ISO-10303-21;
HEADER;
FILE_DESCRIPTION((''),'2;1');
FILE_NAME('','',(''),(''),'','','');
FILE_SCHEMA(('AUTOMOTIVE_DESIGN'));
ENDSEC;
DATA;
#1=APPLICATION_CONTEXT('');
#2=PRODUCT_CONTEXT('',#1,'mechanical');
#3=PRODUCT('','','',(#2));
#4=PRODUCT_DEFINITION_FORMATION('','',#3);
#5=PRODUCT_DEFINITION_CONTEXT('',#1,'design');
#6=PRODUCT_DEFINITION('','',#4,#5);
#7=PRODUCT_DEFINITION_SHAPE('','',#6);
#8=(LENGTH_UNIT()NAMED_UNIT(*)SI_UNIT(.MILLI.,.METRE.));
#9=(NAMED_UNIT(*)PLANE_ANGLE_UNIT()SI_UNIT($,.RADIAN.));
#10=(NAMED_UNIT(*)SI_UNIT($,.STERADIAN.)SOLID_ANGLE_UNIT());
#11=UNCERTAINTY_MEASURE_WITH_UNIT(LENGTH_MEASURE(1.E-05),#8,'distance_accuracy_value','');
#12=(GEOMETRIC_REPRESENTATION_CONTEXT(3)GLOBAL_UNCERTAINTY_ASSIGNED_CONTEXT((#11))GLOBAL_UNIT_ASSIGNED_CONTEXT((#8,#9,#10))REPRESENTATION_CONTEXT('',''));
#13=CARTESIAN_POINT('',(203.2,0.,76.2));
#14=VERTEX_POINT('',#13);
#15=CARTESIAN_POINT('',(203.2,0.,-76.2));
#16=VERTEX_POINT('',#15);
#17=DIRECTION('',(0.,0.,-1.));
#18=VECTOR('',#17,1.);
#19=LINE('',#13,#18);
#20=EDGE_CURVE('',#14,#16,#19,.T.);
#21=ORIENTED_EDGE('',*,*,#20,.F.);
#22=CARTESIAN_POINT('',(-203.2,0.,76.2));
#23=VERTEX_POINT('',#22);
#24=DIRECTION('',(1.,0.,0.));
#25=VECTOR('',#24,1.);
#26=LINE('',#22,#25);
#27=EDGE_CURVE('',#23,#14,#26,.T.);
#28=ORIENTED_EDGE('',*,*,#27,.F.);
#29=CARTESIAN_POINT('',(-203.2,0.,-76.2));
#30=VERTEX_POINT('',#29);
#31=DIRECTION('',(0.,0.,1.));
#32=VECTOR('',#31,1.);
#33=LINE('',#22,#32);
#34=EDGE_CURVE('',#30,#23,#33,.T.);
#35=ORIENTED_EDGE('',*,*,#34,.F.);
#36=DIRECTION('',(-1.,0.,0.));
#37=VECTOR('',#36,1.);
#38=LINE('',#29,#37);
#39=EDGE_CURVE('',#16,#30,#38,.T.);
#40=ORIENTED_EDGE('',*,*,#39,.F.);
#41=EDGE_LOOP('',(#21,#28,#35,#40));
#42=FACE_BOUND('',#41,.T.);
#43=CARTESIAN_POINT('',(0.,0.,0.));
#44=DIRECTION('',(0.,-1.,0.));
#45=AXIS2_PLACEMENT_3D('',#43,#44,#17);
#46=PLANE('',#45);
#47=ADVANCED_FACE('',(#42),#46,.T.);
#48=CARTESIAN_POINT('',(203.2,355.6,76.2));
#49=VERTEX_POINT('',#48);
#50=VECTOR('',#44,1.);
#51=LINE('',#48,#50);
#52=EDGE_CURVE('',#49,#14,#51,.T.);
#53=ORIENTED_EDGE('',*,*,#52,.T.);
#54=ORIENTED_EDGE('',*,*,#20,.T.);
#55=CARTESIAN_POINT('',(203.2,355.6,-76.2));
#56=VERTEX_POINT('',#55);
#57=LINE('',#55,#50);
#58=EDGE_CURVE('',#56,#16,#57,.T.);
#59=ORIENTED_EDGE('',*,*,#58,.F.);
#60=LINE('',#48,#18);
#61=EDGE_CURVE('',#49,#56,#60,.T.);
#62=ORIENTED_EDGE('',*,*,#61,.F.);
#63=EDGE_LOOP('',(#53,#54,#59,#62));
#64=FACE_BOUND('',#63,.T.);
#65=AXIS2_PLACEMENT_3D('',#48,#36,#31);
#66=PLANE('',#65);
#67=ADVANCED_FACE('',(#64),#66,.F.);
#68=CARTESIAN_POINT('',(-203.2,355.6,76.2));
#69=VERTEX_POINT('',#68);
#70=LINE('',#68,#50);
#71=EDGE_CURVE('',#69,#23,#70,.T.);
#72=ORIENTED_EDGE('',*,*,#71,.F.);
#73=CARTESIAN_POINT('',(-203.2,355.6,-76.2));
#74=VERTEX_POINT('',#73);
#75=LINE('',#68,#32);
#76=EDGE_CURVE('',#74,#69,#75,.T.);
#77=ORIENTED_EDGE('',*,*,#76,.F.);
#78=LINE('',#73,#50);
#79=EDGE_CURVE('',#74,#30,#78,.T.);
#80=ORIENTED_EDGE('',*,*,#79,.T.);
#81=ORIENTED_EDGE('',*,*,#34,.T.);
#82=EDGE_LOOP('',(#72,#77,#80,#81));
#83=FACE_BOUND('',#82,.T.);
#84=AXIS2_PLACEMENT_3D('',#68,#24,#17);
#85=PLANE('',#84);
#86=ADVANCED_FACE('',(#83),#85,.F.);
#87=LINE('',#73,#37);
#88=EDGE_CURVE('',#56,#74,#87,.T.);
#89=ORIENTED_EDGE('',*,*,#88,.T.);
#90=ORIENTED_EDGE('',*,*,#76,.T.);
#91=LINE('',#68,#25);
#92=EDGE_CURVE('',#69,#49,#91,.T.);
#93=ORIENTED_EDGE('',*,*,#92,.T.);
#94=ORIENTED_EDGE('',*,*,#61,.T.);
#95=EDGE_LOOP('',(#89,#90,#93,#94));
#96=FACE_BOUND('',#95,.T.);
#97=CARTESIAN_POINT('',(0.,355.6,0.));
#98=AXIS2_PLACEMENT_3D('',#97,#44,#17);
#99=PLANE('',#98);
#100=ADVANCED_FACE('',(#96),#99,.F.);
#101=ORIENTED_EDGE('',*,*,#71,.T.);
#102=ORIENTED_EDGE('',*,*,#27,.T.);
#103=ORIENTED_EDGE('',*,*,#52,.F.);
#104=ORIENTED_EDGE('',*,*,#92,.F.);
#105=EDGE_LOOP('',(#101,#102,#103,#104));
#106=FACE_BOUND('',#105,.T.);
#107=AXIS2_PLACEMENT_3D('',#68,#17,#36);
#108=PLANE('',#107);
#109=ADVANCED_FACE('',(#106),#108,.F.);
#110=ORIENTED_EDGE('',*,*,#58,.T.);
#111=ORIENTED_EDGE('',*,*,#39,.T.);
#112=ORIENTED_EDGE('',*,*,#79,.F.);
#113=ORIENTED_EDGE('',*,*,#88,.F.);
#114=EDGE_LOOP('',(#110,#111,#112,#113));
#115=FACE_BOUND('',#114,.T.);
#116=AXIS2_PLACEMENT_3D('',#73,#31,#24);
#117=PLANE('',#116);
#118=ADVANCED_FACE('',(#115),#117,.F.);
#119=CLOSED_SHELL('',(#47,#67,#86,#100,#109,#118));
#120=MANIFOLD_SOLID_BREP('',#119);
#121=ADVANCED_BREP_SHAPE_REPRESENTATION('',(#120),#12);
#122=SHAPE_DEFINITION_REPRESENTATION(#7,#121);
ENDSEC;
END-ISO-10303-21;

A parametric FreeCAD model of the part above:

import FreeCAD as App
import Part
import Sketcher

V = App.Vector
Q = App.Units.Quantity


def add_polygon(sketch, points):
    """Adds a closed chain of lines whose ends are joined by coincident constraints."""
    first, n = sketch.GeometryCount, len(points)
    for a, b in zip(points, points[1:] + points[:1]):
        sketch.addGeometry(Part.LineSegment(App.Vector(*a, 0), App.Vector(*b, 0)), False)
    for i in range(n):
        sketch.addConstraint(Sketcher.Constraint("Coincident", first + i, 2, first + (i + 1) % n, 1))

doc = App.newDocument("Part")
body = doc.addObject("PartDesign::Body", "Body")

# Sketch on XZ plane
sketch1 = doc.addObject("Sketcher::SketchObject", "Sketch")
body.addObject(sketch1)
sketch1.AttachmentSupport = (doc.XZ_Plane, [""])
sketch1.MapMode = "FlatFace"
add_polygon(sketch1, [(-203.2, -76.2), (-203.2, 76.2), (203.2, 76.2), (203.2, -76.2)])  # lines 0-3
sketch1.addConstraint([
    Sketcher.Constraint("Vertical", 0),
    Sketcher.Constraint("Horizontal", 1),
    Sketcher.Constraint("Vertical", 2),
    Sketcher.Constraint("Horizontal", 3),
    Sketcher.Constraint("Symmetric", 0, 2, 2, 2, -1, 1),
    Sketcher.Constraint("DistanceX", 1, 1, 1, 2, Q("16 in")),
    Sketcher.Constraint("DistanceY", 0, 1, 0, 2, Q("6 in")),
])
pad1 = doc.addObject("PartDesign::Pad", "Pad")
body.addObject(pad1)
pad1.Profile = sketch1
pad1.Length = Q("14 in")
pad1.Reversed = True

doc.recompute()
